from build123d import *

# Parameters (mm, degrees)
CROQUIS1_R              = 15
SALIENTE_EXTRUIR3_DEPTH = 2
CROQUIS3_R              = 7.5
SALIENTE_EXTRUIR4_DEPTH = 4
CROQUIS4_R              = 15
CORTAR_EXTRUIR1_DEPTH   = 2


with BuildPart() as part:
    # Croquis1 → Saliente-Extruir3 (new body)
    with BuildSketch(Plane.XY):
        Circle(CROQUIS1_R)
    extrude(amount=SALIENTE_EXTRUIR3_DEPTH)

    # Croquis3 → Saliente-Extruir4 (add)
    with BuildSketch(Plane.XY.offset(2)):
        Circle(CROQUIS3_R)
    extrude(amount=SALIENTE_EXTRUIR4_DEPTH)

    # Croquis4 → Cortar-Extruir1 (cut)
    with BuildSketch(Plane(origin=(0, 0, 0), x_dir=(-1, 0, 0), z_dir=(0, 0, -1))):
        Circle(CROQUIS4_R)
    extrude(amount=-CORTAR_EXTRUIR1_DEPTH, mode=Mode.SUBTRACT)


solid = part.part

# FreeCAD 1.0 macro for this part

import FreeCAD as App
import Part
import Sketcher
Q = App.Units.Quantity

doc = App.newDocument("Part")
params = doc.addObject("Spreadsheet::Sheet", "Params")
for row, (alias, value) in enumerate([
    ("sketch1_diameter", "30 mm"),
    ("pad1_length", "2 mm"),
    ("sketch2_diameter", "15 mm"),
    ("pad2_length", "4 mm"),
    ("sketch3_diameter", "30 mm"),
    ("pocket1_length", "2 mm"),
], start=1):
    params.set(f"A{row}", alias)
    params.set(f"B{row}", "=" + value)
    params.setAlias(f"B{row}", alias)

body = doc.addObject("PartDesign::Body", "Body")

# Sketch on XY plane
sketch1 = doc.addObject("Sketcher::SketchObject", "Sketch")
body.addObject(sketch1)
sketch1.AttachmentSupport = (doc.XY_Plane, [""])
sketch1.MapMode = "FlatFace"
sketch1.addGeometry(Part.Circle(App.Vector(0, 0, 0), App.Vector(0, 0, 1), 15), False)
sketch1.addConstraint([
    Sketcher.Constraint("Coincident", 0, 3, -1, 1),
    Sketcher.Constraint("Diameter", 0, Q("30 mm")),
])
sketch1.setExpression("Constraints[1]", "Params.sketch1_diameter")
pad1 = doc.addObject("PartDesign::Pad", "Pad")
body.addObject(pad1)
pad1.Profile = sketch1
pad1.setExpression("Length", "Params.pad1_length")

# Sketch on XY plane
sketch2 = doc.addObject("Sketcher::SketchObject", "Sketch001")
body.addObject(sketch2)
sketch2.AttachmentSupport = (doc.XY_Plane, [""])
sketch2.MapMode = "FlatFace"
sketch2.AttachmentOffset = App.Placement(App.Vector(0, 0, 2), App.Rotation())
sketch2.addGeometry(Part.Circle(App.Vector(0, 0, 0), App.Vector(0, 0, 1), 7.5), False)
sketch2.addConstraint([
    Sketcher.Constraint("Coincident", 0, 3, -1, 1),
    Sketcher.Constraint("Diameter", 0, Q("15 mm")),
])
sketch2.setExpression("Constraints[1]", "Params.sketch2_diameter")
pad2 = doc.addObject("PartDesign::Pad", "Pad001")
body.addObject(pad2)
pad2.Profile = sketch2
pad2.setExpression("Length", "Params.pad2_length")

# Sketch on XY plane
sketch3 = doc.addObject("Sketcher::SketchObject", "Sketch002")
body.addObject(sketch3)
sketch3.AttachmentSupport = (doc.XY_Plane, [""])
sketch3.MapMode = "FlatFace"
sketch3.addGeometry(Part.Circle(App.Vector(0, 0, 0), App.Vector(0, 0, 1), 15), False)
sketch3.addConstraint([
    Sketcher.Constraint("Coincident", 0, 3, -1, 1),
    Sketcher.Constraint("Diameter", 0, Q("30 mm")),
])
sketch3.setExpression("Constraints[1]", "Params.sketch3_diameter")
pocket1 = doc.addObject("PartDesign::Pocket", "Pocket")
body.addObject(pocket1)
pocket1.Profile = sketch3
pocket1.setExpression("Length", "Params.pocket1_length")
pocket1.Reversed = True

doc.recompute()
